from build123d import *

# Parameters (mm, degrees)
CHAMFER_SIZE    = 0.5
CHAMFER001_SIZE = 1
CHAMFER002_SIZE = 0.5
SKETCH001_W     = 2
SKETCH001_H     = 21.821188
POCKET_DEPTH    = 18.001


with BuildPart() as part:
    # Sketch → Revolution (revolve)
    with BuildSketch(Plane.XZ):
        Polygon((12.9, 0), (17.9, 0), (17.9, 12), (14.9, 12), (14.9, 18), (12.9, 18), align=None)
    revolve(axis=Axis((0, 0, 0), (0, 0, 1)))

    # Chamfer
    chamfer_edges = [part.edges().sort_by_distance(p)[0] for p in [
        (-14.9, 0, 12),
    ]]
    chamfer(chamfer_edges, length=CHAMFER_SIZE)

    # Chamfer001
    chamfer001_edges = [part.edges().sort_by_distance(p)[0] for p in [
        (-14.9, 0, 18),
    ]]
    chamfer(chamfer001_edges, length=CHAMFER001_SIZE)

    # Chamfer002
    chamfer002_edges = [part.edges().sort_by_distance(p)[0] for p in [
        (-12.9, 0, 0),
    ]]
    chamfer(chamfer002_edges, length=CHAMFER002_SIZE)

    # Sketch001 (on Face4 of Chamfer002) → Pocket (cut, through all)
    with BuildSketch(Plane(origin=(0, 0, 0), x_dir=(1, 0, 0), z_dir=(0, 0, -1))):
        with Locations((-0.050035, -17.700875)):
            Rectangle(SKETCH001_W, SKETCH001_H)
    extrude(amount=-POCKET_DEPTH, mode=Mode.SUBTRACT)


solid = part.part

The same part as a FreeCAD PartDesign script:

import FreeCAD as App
import Part
import Sketcher
from FreeCAD import Vector


def edges_at(feature, points):
    """Names of the edges that pass closest to the given points."""
    edges = feature.Shape.Edges
    near = lambda p: min(range(len(edges)), key=lambda i: edges[i].distToShape(Part.Vertex(*p))[0])
    return sorted({f"Edge{near(p) + 1}" for p in points})


def add_polygon(sketch, points):
    """Adds a closed chain of lines whose ends are joined by coincident constraints."""
    first, n = sketch.GeometryCount, len(points)
    for a, b in zip(points, points[1:] + points[:1]):
        sketch.addGeometry(Part.LineSegment(App.Vector(*a, 0), App.Vector(*b, 0)), False)
    for i in range(n):
        sketch.addConstraint(Sketcher.Constraint("Coincident", first + i, 2, first + (i + 1) % n, 1))

doc = App.newDocument("Part")
body = doc.addObject("PartDesign::Body", "Body")

# Sketch on XZ plane
sketch1 = body.newObject("Sketcher::SketchObject", "Sketch")
sketch1.AttachmentSupport = (doc.getObject("XZ_Plane"), [""])
sketch1.MapMode = "FlatFace"
add_polygon(sketch1, [(12.9, 0), (17.9, 0), (17.9, 12), (14.9, 12), (14.9, 18), (12.9, 18)])  # lines 0-5
sketch1.addConstraint([
    Sketcher.Constraint("Horizontal", 0),
    Sketcher.Constraint("Vertical", 1),
    Sketcher.Constraint("Horizontal", 2),
    Sketcher.Constraint("Vertical", 3),
    Sketcher.Constraint("Horizontal", 4),
    Sketcher.Constraint("Vertical", 5),
    Sketcher.Constraint("PointOnObject", 0, 2, -1),
    Sketcher.Constraint("DistanceX", 0, 1, 0, 2, 5.0),
    Sketcher.Constraint("DistanceX", 2, 2, 2, 1, 3.0),
    Sketcher.Constraint("DistanceY", 1, 1, 1, 2, 12.0),
    Sketcher.Constraint("DistanceY", 3, 1, 3, 2, 6.0),
    Sketcher.Constraint("DistanceX", -1, 1, 0, 2, 17.9),
])
revolution = body.newObject("PartDesign::Revolution", "Revolution")
revolution.Profile = sketch1
revolution.ReferenceAxis = (sketch1, ["V_Axis"])
revolution.Angle = 360
doc.recompute()

chamfer = body.newObject("PartDesign::Chamfer", "Chamfer")
chamfer.Base = (revolution, edges_at(revolution, [(-14.9, 0, 12)]))
chamfer.Size = 0.5
doc.recompute()

chamfer2 = body.newObject("PartDesign::Chamfer", "Chamfer001")
chamfer2.Base = (chamfer, edges_at(chamfer, [(-14.9, 0, 18)]))
chamfer2.Size = 1
doc.recompute()

chamfer3 = body.newObject("PartDesign::Chamfer", "Chamfer002")
chamfer3.Base = (chamfer2, edges_at(chamfer2, [(-12.9, 0, 0)]))
chamfer3.Size = 0.5

# Sketch on XY plane
sketch2 = body.newObject("Sketcher::SketchObject", "Sketch001")
sketch2.AttachmentSupport = (doc.getObject("XY_Plane"), [""])
sketch2.MapMode = "FlatFace"
add_polygon(sketch2, [(-1.1, 6.8), (-1.1, 28.6), (0.9, 28.6), (0.9, 6.8)])  # lines 0-3
sketch2.addConstraint([
    Sketcher.Constraint("Vertical", 0),
    Sketcher.Constraint("Horizontal", 1),
    Sketcher.Constraint("Vertical", 2),
    Sketcher.Constraint("Horizontal", 3),
    Sketcher.Constraint("DistanceX", 1, 1, 1, 2, 2.0),
    Sketcher.Constraint("DistanceY", 0, 1, 0, 2, 21.821188),
    Sketcher.Constraint("DistanceY", -1, 1, 0, 2, 28.611469),
    Sketcher.Constraint("DistanceX", 0, 2, -1, 1, 1.050035),
])
pocket1 = body.newObject("PartDesign::Pocket", "Pocket")
pocket1.Profile = sketch2
pocket1.Type = "ThroughAll"
pocket1.Reversed = True

doc.recompute()
